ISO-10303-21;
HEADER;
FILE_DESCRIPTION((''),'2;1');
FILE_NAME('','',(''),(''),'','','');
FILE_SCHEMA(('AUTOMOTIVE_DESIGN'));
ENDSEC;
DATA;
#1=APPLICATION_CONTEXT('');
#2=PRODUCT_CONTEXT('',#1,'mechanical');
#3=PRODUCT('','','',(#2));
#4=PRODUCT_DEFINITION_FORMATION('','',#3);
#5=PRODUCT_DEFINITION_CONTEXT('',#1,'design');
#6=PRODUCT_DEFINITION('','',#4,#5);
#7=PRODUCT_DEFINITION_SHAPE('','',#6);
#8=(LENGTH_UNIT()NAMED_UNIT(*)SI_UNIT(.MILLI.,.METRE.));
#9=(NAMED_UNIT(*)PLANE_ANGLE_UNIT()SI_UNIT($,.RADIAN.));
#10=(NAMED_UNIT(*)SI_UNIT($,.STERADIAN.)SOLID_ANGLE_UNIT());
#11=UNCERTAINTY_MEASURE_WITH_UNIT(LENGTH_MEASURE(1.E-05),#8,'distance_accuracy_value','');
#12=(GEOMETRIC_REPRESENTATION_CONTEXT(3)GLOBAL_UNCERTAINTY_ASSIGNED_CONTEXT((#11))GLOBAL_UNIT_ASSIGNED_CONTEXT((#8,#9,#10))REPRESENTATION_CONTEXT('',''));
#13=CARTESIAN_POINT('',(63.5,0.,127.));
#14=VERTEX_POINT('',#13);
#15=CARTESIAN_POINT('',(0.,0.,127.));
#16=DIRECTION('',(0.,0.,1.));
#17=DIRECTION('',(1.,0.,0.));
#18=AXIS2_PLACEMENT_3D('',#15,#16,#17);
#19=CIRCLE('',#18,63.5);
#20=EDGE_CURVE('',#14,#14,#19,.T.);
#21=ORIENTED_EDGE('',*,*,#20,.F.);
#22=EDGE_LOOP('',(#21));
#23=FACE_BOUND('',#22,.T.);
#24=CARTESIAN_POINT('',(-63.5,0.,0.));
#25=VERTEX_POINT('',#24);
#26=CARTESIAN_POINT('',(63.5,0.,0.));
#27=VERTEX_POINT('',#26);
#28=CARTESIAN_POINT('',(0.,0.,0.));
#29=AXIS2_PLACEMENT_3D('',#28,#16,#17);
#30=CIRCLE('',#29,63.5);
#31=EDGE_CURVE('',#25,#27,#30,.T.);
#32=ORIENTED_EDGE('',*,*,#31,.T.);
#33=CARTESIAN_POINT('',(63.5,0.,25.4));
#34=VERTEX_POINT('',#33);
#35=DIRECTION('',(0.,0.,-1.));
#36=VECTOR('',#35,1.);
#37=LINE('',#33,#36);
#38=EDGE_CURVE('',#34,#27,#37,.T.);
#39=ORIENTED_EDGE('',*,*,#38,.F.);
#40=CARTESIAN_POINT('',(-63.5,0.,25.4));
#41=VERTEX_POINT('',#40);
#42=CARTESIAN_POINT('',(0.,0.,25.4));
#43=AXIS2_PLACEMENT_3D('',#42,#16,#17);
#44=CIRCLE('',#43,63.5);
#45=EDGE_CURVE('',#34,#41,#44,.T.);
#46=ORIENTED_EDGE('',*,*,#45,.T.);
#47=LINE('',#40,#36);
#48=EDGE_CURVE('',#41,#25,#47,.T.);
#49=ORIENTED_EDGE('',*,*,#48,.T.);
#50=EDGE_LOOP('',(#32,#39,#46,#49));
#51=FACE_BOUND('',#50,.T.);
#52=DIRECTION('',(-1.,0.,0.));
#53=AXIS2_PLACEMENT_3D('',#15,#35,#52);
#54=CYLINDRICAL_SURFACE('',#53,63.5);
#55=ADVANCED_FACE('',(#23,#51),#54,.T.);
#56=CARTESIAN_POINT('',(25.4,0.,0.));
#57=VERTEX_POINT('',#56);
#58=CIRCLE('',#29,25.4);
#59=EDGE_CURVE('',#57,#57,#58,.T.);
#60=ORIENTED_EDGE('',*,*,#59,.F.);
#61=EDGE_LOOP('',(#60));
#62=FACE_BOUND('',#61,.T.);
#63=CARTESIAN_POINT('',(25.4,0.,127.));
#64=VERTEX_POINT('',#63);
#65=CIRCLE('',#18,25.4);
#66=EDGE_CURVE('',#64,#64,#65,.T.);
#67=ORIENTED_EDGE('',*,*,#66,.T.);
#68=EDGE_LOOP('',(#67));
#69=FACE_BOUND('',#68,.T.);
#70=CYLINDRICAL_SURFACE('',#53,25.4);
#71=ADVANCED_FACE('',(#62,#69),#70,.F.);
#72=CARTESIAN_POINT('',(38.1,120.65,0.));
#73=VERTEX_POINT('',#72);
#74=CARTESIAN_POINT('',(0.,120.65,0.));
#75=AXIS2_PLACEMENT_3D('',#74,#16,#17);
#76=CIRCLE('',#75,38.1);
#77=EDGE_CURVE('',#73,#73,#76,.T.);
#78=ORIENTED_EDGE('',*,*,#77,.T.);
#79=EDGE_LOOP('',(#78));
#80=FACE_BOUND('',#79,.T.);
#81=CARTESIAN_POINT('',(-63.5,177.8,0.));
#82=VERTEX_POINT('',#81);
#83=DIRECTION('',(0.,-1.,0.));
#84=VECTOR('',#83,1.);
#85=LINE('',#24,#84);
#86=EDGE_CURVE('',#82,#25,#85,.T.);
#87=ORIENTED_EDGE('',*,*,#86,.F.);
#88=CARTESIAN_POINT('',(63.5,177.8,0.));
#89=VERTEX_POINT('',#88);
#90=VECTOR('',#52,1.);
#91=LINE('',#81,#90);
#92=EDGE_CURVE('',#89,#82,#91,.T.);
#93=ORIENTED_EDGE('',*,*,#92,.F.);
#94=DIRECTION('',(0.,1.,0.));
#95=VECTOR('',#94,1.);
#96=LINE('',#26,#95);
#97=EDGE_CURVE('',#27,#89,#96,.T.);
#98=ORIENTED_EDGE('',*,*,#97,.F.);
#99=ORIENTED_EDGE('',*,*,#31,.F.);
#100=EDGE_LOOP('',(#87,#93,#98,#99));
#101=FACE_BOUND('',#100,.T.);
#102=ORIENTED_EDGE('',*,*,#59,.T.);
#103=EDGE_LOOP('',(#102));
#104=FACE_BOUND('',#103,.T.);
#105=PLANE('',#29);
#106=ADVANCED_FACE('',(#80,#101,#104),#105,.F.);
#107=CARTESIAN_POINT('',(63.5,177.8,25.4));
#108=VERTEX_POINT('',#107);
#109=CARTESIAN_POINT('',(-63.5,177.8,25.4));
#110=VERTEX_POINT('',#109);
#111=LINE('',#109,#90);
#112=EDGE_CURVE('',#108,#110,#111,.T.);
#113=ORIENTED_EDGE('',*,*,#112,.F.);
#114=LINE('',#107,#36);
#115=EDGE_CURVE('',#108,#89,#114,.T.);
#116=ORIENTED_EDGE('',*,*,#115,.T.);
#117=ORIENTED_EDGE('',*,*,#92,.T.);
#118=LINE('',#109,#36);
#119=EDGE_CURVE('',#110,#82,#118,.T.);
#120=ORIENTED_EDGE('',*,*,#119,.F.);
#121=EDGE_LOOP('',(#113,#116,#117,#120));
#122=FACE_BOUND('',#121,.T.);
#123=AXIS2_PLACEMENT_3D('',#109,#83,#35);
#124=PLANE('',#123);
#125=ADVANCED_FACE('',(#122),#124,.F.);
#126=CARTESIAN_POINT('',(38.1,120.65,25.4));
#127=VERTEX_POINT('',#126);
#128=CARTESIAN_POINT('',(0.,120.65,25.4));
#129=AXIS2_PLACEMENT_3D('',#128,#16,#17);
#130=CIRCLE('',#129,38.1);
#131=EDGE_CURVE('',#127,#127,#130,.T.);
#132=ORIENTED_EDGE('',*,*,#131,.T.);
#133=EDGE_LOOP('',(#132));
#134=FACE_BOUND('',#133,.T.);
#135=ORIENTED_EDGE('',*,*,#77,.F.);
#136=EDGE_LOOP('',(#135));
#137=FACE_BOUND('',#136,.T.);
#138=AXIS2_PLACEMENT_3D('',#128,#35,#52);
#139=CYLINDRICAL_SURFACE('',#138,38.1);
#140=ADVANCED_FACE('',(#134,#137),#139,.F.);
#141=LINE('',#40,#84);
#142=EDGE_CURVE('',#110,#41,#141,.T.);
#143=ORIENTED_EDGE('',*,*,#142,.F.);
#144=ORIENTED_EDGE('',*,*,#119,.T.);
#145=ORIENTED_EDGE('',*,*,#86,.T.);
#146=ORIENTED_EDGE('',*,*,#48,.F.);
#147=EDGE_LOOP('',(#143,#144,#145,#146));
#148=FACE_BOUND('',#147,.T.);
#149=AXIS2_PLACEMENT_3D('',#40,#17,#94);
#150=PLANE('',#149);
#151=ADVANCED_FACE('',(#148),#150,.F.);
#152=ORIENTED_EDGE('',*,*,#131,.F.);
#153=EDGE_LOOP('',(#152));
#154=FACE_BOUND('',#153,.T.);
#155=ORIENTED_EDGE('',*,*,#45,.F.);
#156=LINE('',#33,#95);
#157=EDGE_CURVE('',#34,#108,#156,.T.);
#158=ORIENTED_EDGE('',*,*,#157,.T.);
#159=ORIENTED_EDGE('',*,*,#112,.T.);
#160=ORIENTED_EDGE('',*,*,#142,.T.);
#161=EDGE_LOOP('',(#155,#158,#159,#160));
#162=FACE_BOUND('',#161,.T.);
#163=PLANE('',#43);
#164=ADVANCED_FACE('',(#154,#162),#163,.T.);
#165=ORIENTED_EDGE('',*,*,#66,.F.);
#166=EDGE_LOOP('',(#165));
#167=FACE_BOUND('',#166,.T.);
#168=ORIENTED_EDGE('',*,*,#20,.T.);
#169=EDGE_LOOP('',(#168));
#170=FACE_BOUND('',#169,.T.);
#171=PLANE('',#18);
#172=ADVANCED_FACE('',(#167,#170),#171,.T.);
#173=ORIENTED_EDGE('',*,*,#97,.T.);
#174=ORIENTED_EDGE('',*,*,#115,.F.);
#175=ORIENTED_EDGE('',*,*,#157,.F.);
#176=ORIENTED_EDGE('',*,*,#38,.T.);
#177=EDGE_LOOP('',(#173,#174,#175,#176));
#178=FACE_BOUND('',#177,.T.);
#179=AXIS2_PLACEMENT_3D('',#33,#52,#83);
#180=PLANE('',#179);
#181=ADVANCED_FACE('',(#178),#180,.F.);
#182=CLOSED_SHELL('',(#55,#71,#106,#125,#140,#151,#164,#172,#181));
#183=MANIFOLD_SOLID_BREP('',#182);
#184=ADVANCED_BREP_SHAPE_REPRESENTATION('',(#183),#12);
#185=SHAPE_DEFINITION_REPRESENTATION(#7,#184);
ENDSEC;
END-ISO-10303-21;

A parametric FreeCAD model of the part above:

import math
import FreeCAD as App
import Part
import Sketcher
Q = App.Units.Quantity

doc = App.newDocument("Part")
body = doc.addObject("PartDesign::Body", "Body")

# Sketch on XY plane
sketch1 = doc.addObject("Sketcher::SketchObject", "Sketch")
body.addObject(sketch1)
sketch1.AttachmentSupport = (doc.XY_Plane, [""])
sketch1.MapMode = "FlatFace"
sketch1.addGeometry(Part.Circle(App.Vector(0, 0, 0), App.Vector(0, 0, 1), 64), False)
sketch1.addGeometry(Part.Circle(App.Vector(0, 0, 0), App.Vector(0, 0, 1), 25), False)
sketch1.addConstraint(Sketcher.Constraint("Coincident", 0, 3, -1, 1))
sketch1.addConstraint(Sketcher.Constraint("Coincident", 1, 3, -1, 1))
sketch1.addConstraint(Sketcher.Constraint("Diameter", 0, Q("5 in")))
sketch1.addConstraint(Sketcher.Constraint("Diameter", 1, Q("2 in")))
pad1 = doc.addObject("PartDesign::Pad", "Pad")
body.addObject(pad1)
pad1.Profile = sketch1
pad1.Length = Q("5 in")

# Sketch on XY plane
sketch2 = doc.addObject("Sketcher::SketchObject", "Sketch001")
body.addObject(sketch2)
sketch2.AttachmentSupport = (doc.XY_Plane, [""])
sketch2.MapMode = "FlatFace"
sketch2.addGeometry(Part.LineSegment(App.Vector(-64, 178, 0), App.Vector(-64, 0, 0)), False)
sketch2.addGeometry(Part.ArcOfCircle(Part.Circle(App.Vector(0, 0, 0), App.Vector(0, 0, 1), 64), math.radians(180), math.radians(360)), False)
sketch2.addGeometry(Part.LineSegment(App.Vector(64, 0, 0), App.Vector(64, 178, 0)), False)
sketch2.addGeometry(Part.LineSegment(App.Vector(64, 178, 0), App.Vector(-64, 178, 0)), False)
sketch2.addGeometry(Part.Circle(App.Vector(0, 121, 0), App.Vector(0, 0, 1), 38), False)
sketch2.addGeometry(Part.Circle(App.Vector(0, 0, 0), App.Vector(0, 0, 1), 25), False)
sketch2.addConstraint(Sketcher.Constraint("Tangent", 0, 2, 1, 1))
sketch2.addConstraint(Sketcher.Constraint("Tangent", 1, 2, 2, 1))
sketch2.addConstraint(Sketcher.Constraint("Coincident", 2, 2, 3, 1))
sketch2.addConstraint(Sketcher.Constraint("Coincident", 3, 2, 0, 1))
sketch2.addConstraint(Sketcher.Constraint("Vertical", 0))
sketch2.addConstraint(Sketcher.Constraint("Vertical", 2))
sketch2.addConstraint(Sketcher.Constraint("Horizontal", 3))
sketch2.addConstraint(Sketcher.Constraint("Coincident", 1, 3, -1, 1))
sketch2.addConstraint(Sketcher.Constraint("Coincident", 5, 3, -1, 1))
sketch2.addConstraint(Sketcher.Constraint("PointOnObject", 4, 3, -2))
sketch2.addConstraint(Sketcher.Constraint("Diameter", 4, Q("3 in")))
sketch2.addConstraint(Sketcher.Constraint("Diameter", 5, Q("2 in")))
sketch2.addConstraint(Sketcher.Constraint("Radius", 1, Q("2.5 in")))
sketch2.addConstraint(Sketcher.Constraint("DistanceY", 0, 2, 0, 1, Q("7 in")))
sketch2.addConstraint(Sketcher.Constraint("DistanceY", -1, 1, 4, 3, Q("4.75 in")))
pad2 = doc.addObject("PartDesign::Pad", "Pad001")
body.addObject(pad2)
pad2.Profile = sketch2
pad2.Length = Q("1 in")

doc.recompute()
